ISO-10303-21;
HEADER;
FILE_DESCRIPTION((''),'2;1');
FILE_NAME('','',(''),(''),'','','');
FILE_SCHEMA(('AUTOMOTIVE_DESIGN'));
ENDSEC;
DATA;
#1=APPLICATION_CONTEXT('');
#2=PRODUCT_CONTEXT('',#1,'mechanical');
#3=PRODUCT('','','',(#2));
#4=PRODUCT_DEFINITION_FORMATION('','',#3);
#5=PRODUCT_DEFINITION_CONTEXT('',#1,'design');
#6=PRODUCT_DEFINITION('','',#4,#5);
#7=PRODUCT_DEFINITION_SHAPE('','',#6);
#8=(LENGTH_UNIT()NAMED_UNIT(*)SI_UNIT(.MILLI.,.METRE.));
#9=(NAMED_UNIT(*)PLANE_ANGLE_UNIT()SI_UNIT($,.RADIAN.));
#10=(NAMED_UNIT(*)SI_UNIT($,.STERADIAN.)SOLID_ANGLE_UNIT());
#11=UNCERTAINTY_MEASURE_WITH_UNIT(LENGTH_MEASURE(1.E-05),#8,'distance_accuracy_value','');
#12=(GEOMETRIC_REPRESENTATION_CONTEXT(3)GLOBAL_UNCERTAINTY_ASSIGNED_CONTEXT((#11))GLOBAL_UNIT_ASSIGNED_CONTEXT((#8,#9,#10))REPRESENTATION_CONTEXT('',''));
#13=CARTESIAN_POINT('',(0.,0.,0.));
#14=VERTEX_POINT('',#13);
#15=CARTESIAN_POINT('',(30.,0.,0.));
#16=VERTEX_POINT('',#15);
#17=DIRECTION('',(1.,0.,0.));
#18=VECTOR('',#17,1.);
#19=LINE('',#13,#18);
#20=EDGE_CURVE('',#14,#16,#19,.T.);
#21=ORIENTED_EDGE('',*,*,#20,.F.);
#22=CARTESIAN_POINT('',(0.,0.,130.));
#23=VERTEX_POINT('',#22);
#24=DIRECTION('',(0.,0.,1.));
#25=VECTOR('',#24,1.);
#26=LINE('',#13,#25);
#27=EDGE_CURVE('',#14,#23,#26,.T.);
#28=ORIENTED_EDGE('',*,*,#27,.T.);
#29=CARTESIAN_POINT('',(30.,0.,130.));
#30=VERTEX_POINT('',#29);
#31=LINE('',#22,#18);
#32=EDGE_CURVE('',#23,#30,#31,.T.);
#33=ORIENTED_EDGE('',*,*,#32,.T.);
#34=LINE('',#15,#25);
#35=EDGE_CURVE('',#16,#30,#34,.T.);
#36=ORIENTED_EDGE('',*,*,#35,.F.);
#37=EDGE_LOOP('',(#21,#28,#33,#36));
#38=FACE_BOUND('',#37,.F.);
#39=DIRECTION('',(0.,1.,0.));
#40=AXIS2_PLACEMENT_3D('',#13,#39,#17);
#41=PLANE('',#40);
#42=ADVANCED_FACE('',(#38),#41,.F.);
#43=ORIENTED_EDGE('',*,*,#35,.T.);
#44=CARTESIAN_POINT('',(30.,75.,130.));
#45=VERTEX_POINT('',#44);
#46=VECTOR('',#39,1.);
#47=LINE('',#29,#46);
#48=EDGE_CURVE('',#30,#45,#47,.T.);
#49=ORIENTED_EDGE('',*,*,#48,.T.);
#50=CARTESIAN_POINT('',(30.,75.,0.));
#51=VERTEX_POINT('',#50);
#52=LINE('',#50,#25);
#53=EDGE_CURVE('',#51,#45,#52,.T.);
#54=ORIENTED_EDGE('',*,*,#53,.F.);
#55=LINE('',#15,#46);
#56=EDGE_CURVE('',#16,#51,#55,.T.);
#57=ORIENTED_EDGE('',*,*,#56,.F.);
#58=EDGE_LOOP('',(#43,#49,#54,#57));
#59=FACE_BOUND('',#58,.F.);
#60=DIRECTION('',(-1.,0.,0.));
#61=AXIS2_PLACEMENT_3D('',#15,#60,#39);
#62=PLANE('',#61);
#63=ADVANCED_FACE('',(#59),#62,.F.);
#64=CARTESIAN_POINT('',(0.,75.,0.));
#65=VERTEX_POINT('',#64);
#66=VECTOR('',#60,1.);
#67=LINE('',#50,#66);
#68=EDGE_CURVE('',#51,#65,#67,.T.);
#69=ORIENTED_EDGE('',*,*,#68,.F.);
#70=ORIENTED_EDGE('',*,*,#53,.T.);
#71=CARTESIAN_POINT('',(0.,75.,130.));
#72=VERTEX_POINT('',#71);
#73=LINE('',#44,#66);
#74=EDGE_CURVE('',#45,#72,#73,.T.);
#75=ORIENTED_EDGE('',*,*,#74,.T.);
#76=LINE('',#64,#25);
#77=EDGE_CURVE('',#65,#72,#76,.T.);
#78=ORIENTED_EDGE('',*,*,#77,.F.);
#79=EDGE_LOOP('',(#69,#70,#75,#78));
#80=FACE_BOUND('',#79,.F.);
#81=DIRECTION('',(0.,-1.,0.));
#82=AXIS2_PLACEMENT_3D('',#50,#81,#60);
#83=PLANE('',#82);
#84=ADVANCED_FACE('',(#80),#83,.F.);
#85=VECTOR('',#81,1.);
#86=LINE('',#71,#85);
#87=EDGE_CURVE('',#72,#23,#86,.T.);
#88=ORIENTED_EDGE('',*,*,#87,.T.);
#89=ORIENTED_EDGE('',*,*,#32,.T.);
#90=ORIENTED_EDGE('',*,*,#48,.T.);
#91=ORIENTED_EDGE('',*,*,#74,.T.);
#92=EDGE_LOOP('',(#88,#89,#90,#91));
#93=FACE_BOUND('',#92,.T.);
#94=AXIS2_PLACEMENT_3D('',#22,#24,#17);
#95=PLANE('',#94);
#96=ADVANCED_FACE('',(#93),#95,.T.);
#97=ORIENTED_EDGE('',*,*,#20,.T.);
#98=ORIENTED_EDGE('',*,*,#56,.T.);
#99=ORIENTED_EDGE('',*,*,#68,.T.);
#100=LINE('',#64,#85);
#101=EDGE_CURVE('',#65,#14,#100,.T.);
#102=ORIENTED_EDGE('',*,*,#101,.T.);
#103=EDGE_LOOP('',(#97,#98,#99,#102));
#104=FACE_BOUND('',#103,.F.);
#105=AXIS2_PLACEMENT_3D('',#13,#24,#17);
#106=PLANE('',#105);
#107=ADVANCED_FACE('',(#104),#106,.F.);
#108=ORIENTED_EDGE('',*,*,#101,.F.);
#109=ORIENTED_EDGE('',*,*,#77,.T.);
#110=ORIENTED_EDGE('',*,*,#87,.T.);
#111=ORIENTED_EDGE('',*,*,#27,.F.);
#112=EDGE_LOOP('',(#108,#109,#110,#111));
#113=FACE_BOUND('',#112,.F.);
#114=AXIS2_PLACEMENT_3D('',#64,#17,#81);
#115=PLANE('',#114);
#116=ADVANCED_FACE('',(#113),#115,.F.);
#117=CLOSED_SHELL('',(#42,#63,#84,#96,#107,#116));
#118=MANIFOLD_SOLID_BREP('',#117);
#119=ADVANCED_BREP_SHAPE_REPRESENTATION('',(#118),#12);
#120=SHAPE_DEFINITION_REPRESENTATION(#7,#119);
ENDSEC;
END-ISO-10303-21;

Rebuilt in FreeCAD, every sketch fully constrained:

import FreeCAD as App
import Part
import Sketcher


def add_polygon(sketch, points):
    """Adds a closed chain of lines whose ends are joined by coincident constraints."""
    first, n = sketch.GeometryCount, len(points)
    for a, b in zip(points, points[1:] + points[:1]):
        sketch.addGeometry(Part.LineSegment(App.Vector(*a, 0), App.Vector(*b, 0)), False)
    for i in range(n):
        sketch.addConstraint(Sketcher.Constraint("Coincident", first + i, 2, first + (i + 1) % n, 1))

doc = App.newDocument("Part")
body = doc.addObject("PartDesign::Body", "Body")

# Sketch on XY plane
sketch1 = body.newObject("Sketcher::SketchObject", "Sketch")
sketch1.AttachmentSupport = (doc.getObject("XY_Plane"), [""])
sketch1.MapMode = "FlatFace"
add_polygon(sketch1, [(0, 75), (0, 0), (30, 0), (30, 75)])  # lines 0-3
sketch1.addConstraint(Sketcher.Constraint("Vertical", 0))
sketch1.addConstraint(Sketcher.Constraint("Horizontal", 1))
sketch1.addConstraint(Sketcher.Constraint("Vertical", 2))
sketch1.addConstraint(Sketcher.Constraint("Horizontal", 3))
sketch1.addConstraint(Sketcher.Constraint("Coincident", 0, 2, -1, 1))
sketch1.addConstraint(Sketcher.Constraint("DistanceX", 1, 1, 1, 2, 30.0))
sketch1.addConstraint(Sketcher.Constraint("DistanceY", 0, 2, 0, 1, 75.0))
pad1 = body.newObject("PartDesign::Pad", "Pad")
pad1.Profile = sketch1
pad1.Length = 130

doc.recompute()
